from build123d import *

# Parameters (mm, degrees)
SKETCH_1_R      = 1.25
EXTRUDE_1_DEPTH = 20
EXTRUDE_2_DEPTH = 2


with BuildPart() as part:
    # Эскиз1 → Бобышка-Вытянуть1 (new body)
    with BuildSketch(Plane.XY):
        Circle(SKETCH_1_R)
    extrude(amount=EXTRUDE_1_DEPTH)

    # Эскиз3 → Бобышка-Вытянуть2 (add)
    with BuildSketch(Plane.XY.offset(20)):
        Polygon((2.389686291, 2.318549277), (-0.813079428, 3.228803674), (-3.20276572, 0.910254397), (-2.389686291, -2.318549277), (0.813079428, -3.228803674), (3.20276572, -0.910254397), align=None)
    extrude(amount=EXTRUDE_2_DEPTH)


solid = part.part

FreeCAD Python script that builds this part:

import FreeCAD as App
import Part
import Sketcher
from FreeCAD import Vector
Q = App.Units.Quantity


def add_polygon(sketch, points):
    """Adds a closed chain of lines whose ends are joined by coincident constraints."""
    first, n = sketch.GeometryCount, len(points)
    for a, b in zip(points, points[1:] + points[:1]):
        sketch.addGeometry(Part.LineSegment(App.Vector(*a, 0), App.Vector(*b, 0)), False)
    for i in range(n):
        sketch.addConstraint(Sketcher.Constraint("Coincident", first + i, 2, first + (i + 1) % n, 1))

doc = App.newDocument("Part")
body = doc.addObject("PartDesign::Body", "Body")

sketch1 = doc.addObject("Sketcher::SketchObject", "Sketch")
body.addObject(sketch1)
sketch1.AttachmentSupport = (doc.XY_Plane, [""])
sketch1.MapMode = "FlatFace"
sketch1.addGeometry(Part.Circle(Vector(0, 0, 0), Vector(0, 0, 1), 1.2), False)
sketch1.addConstraint([
    Sketcher.Constraint("Coincident", 0, 3, -1, 1),
    Sketcher.Constraint("Diameter", 0, Q("2.5 mm")),
])
pad1 = doc.addObject("PartDesign::Pad", "Pad")
body.addObject(pad1)
pad1.Profile = sketch1
pad1.Length = 20

sketch2 = doc.addObject("Sketcher::SketchObject", "Sketch001")
body.addObject(sketch2)
sketch2.AttachmentSupport = (doc.XY_Plane, [""])
sketch2.MapMode = "FlatFace"
sketch2.AttachmentOffset = App.Placement(Vector(0, 0, 20), App.Rotation())
add_polygon(sketch2, [(2.4, 2.3), (-0.8, 3.2), (-3.2, 0.9), (-2.4, -2.3), (0.8, -3.2), (3.2, -0.9)])
sketch2.addConstraint([
    Sketcher.Constraint("Symmetric", 0, 2, 3, 2, -1, 1),
    Sketcher.Constraint("Symmetric", 1, 2, 4, 2, -1, 1),
    Sketcher.Constraint("Symmetric", 2, 2, 5, 2, -1, 1),
    Sketcher.Constraint("Equal", 0, 1),
    Sketcher.Constraint("Equal", 1, 2),
    Sketcher.Constraint("DistanceY", 2, 2, 5, 2, Q("4.637099 mm")),
    Sketcher.Constraint("DistanceX", 0, 2, -1, 1, Q("0.813079 mm")),
    Sketcher.Constraint("DistanceY", 1, 2, 0, 2, Q("2.318549 mm")),
    Sketcher.Constraint("DistanceX", 1, 2, 2, 2, Q("0.813079 mm")),
])
pad2 = doc.addObject("PartDesign::Pad", "Pad001")
body.addObject(pad2)
pad2.Profile = sketch2
pad2.Length = 2

doc.recompute()
